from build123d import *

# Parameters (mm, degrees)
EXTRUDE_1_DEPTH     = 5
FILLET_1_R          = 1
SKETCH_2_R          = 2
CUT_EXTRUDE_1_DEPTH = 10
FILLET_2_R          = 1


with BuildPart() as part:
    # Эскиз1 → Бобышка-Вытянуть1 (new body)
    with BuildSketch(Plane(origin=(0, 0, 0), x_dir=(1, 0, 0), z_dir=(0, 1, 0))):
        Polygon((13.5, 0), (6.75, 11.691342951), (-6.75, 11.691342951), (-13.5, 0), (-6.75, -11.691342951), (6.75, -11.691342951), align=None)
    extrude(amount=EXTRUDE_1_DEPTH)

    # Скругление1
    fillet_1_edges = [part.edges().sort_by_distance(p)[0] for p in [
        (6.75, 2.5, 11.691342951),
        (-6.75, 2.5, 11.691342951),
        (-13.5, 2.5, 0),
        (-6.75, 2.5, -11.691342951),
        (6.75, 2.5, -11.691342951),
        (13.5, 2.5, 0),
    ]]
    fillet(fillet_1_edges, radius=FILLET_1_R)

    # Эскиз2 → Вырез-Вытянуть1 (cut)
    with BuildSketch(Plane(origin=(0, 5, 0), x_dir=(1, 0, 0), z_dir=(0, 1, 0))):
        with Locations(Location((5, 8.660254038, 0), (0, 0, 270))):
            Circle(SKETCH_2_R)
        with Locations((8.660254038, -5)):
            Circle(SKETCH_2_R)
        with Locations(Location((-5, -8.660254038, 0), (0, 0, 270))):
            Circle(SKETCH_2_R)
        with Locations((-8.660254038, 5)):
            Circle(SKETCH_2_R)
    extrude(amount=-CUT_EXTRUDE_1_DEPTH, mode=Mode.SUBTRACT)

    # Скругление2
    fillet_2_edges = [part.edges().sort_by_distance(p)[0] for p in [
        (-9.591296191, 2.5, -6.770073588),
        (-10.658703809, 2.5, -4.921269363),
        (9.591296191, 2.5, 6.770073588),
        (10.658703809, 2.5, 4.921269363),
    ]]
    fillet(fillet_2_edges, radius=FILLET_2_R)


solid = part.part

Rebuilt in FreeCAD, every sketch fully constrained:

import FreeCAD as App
import Part
import Sketcher
from FreeCAD import Vector
Q = App.Units.Quantity


def edges_at(feature, points):
    """Names of the edges that pass closest to the given points."""
    edges = feature.Shape.Edges
    near = lambda p: min(range(len(edges)), key=lambda i: edges[i].distToShape(Part.Vertex(*p))[0])
    return sorted({f"Edge{near(p) + 1}" for p in points})


def add_polygon(sketch, points):
    """Adds a closed chain of lines whose ends are joined by coincident constraints."""
    first, n = sketch.GeometryCount, len(points)
    for a, b in zip(points, points[1:] + points[:1]):
        sketch.addGeometry(Part.LineSegment(App.Vector(*a, 0), App.Vector(*b, 0)), False)
    for i in range(n):
        sketch.addConstraint(Sketcher.Constraint("Coincident", first + i, 2, first + (i + 1) % n, 1))

doc = App.newDocument("Part")
body = doc.addObject("PartDesign::Body", "Body")

sketch1 = doc.addObject("Sketcher::SketchObject", "Sketch")
body.addObject(sketch1)
sketch1.AttachmentSupport = (doc.XZ_Plane, [""])
sketch1.MapMode = "FlatFace"
add_polygon(sketch1, [(14, 0), (7, -12), (-7, -12), (-14, 0), (-7, 12), (7, 12)])
sketch1.addConstraint([
    Sketcher.Constraint("Horizontal", 1),
    Sketcher.Constraint("Horizontal", 4),
    Sketcher.Constraint("Symmetric", 0, 2, 3, 2, -1, 1),
    Sketcher.Constraint("Symmetric", 2, 2, 5, 2, -1, 1),
    Sketcher.Constraint("PointOnObject", 2, 2, -1),
    Sketcher.Constraint("Parallel", 2, 5),
    Sketcher.Constraint("Vertical", 1, 2, 3, 2),
    Sketcher.Constraint("Angle", 0, Q("-120 deg")),
    Sketcher.Constraint("DistanceX", 1, 2, 1, 1, Q("13.5 mm")),
    Sketcher.Constraint("DistanceX", 2, 2, 5, 2, Q("27 mm")),
])
pad1 = doc.addObject("PartDesign::Pad", "Pad")
body.addObject(pad1)
pad1.Profile = sketch1
pad1.Length = 5
pad1.Reversed = True
doc.recompute()

fillet = doc.addObject("PartDesign::Fillet", "Fillet")
body.addObject(fillet)
fillet.Base = (pad1, edges_at(pad1, [
    (6.75, 2.5, 11.691),
    (-6.75, 2.5, 11.691),
    (-13.5, 2.5, 0),
    (-6.75, 2.5, -11.691),
    (6.75, 2.5, -11.691),
    (13.5, 2.5, 0),
]))
fillet.Radius = 1

sketch2 = doc.addObject("Sketcher::SketchObject", "Sketch001")
body.addObject(sketch2)
sketch2.AttachmentSupport = (doc.XZ_Plane, [""])
sketch2.MapMode = "FlatFace"
sketch2.AttachmentOffset = App.Placement(Vector(0, 0, -5), App.Rotation())
sketch2.addGeometry([
    Part.Circle(Vector(5, -8.7, 0), Vector(0, 0, 1), 2),
    Part.Circle(Vector(8.7, 5, 0), Vector(0, 0, 1), 2),
    Part.Circle(Vector(-5, 8.7, 0), Vector(0, 0, 1), 2),
    Part.Circle(Vector(-8.7, -5, 0), Vector(0, 0, 1), 2),
], False)
sketch2.addConstraint([
    Sketcher.Constraint("Equal", 0, 1),
    Sketcher.Constraint("Equal", 1, 2),
    Sketcher.Constraint("Equal", 2, 3),
    Sketcher.Constraint("Symmetric", 0, 3, 2, 3, -1, 1),
    Sketcher.Constraint("Symmetric", 1, 3, 3, 3, -1, 1),
    Sketcher.Constraint("Diameter", 0, Q("4 mm")),
    Sketcher.Constraint("DistanceX", -1, 1, 0, 3, Q("5 mm")),
    Sketcher.Constraint("DistanceY", -1, 1, 1, 3, Q("5 mm")),
    Sketcher.Constraint("DistanceY", 0, 3, 2, 3, Q("17.320508 mm")),
    Sketcher.Constraint("DistanceX", 3, 3, 1, 3, Q("17.320508 mm")),
])
pocket1 = doc.addObject("PartDesign::Pocket", "Pocket")
body.addObject(pocket1)
pocket1.Profile = sketch2
pocket1.Length = 10
pocket1.Reversed = True
doc.recompute()

fillet2 = doc.addObject("PartDesign::Fillet", "Fillet001")
body.addObject(fillet2)
fillet2.Base = (pocket1, edges_at(pocket1, [
    (-9.591, 2.5, -6.77),
    (-10.659, 2.5, -4.921),
    (9.591, 2.5, 6.77),
    (10.659, 2.5, 4.921),
]))
fillet2.Radius = 1

doc.recompute()
